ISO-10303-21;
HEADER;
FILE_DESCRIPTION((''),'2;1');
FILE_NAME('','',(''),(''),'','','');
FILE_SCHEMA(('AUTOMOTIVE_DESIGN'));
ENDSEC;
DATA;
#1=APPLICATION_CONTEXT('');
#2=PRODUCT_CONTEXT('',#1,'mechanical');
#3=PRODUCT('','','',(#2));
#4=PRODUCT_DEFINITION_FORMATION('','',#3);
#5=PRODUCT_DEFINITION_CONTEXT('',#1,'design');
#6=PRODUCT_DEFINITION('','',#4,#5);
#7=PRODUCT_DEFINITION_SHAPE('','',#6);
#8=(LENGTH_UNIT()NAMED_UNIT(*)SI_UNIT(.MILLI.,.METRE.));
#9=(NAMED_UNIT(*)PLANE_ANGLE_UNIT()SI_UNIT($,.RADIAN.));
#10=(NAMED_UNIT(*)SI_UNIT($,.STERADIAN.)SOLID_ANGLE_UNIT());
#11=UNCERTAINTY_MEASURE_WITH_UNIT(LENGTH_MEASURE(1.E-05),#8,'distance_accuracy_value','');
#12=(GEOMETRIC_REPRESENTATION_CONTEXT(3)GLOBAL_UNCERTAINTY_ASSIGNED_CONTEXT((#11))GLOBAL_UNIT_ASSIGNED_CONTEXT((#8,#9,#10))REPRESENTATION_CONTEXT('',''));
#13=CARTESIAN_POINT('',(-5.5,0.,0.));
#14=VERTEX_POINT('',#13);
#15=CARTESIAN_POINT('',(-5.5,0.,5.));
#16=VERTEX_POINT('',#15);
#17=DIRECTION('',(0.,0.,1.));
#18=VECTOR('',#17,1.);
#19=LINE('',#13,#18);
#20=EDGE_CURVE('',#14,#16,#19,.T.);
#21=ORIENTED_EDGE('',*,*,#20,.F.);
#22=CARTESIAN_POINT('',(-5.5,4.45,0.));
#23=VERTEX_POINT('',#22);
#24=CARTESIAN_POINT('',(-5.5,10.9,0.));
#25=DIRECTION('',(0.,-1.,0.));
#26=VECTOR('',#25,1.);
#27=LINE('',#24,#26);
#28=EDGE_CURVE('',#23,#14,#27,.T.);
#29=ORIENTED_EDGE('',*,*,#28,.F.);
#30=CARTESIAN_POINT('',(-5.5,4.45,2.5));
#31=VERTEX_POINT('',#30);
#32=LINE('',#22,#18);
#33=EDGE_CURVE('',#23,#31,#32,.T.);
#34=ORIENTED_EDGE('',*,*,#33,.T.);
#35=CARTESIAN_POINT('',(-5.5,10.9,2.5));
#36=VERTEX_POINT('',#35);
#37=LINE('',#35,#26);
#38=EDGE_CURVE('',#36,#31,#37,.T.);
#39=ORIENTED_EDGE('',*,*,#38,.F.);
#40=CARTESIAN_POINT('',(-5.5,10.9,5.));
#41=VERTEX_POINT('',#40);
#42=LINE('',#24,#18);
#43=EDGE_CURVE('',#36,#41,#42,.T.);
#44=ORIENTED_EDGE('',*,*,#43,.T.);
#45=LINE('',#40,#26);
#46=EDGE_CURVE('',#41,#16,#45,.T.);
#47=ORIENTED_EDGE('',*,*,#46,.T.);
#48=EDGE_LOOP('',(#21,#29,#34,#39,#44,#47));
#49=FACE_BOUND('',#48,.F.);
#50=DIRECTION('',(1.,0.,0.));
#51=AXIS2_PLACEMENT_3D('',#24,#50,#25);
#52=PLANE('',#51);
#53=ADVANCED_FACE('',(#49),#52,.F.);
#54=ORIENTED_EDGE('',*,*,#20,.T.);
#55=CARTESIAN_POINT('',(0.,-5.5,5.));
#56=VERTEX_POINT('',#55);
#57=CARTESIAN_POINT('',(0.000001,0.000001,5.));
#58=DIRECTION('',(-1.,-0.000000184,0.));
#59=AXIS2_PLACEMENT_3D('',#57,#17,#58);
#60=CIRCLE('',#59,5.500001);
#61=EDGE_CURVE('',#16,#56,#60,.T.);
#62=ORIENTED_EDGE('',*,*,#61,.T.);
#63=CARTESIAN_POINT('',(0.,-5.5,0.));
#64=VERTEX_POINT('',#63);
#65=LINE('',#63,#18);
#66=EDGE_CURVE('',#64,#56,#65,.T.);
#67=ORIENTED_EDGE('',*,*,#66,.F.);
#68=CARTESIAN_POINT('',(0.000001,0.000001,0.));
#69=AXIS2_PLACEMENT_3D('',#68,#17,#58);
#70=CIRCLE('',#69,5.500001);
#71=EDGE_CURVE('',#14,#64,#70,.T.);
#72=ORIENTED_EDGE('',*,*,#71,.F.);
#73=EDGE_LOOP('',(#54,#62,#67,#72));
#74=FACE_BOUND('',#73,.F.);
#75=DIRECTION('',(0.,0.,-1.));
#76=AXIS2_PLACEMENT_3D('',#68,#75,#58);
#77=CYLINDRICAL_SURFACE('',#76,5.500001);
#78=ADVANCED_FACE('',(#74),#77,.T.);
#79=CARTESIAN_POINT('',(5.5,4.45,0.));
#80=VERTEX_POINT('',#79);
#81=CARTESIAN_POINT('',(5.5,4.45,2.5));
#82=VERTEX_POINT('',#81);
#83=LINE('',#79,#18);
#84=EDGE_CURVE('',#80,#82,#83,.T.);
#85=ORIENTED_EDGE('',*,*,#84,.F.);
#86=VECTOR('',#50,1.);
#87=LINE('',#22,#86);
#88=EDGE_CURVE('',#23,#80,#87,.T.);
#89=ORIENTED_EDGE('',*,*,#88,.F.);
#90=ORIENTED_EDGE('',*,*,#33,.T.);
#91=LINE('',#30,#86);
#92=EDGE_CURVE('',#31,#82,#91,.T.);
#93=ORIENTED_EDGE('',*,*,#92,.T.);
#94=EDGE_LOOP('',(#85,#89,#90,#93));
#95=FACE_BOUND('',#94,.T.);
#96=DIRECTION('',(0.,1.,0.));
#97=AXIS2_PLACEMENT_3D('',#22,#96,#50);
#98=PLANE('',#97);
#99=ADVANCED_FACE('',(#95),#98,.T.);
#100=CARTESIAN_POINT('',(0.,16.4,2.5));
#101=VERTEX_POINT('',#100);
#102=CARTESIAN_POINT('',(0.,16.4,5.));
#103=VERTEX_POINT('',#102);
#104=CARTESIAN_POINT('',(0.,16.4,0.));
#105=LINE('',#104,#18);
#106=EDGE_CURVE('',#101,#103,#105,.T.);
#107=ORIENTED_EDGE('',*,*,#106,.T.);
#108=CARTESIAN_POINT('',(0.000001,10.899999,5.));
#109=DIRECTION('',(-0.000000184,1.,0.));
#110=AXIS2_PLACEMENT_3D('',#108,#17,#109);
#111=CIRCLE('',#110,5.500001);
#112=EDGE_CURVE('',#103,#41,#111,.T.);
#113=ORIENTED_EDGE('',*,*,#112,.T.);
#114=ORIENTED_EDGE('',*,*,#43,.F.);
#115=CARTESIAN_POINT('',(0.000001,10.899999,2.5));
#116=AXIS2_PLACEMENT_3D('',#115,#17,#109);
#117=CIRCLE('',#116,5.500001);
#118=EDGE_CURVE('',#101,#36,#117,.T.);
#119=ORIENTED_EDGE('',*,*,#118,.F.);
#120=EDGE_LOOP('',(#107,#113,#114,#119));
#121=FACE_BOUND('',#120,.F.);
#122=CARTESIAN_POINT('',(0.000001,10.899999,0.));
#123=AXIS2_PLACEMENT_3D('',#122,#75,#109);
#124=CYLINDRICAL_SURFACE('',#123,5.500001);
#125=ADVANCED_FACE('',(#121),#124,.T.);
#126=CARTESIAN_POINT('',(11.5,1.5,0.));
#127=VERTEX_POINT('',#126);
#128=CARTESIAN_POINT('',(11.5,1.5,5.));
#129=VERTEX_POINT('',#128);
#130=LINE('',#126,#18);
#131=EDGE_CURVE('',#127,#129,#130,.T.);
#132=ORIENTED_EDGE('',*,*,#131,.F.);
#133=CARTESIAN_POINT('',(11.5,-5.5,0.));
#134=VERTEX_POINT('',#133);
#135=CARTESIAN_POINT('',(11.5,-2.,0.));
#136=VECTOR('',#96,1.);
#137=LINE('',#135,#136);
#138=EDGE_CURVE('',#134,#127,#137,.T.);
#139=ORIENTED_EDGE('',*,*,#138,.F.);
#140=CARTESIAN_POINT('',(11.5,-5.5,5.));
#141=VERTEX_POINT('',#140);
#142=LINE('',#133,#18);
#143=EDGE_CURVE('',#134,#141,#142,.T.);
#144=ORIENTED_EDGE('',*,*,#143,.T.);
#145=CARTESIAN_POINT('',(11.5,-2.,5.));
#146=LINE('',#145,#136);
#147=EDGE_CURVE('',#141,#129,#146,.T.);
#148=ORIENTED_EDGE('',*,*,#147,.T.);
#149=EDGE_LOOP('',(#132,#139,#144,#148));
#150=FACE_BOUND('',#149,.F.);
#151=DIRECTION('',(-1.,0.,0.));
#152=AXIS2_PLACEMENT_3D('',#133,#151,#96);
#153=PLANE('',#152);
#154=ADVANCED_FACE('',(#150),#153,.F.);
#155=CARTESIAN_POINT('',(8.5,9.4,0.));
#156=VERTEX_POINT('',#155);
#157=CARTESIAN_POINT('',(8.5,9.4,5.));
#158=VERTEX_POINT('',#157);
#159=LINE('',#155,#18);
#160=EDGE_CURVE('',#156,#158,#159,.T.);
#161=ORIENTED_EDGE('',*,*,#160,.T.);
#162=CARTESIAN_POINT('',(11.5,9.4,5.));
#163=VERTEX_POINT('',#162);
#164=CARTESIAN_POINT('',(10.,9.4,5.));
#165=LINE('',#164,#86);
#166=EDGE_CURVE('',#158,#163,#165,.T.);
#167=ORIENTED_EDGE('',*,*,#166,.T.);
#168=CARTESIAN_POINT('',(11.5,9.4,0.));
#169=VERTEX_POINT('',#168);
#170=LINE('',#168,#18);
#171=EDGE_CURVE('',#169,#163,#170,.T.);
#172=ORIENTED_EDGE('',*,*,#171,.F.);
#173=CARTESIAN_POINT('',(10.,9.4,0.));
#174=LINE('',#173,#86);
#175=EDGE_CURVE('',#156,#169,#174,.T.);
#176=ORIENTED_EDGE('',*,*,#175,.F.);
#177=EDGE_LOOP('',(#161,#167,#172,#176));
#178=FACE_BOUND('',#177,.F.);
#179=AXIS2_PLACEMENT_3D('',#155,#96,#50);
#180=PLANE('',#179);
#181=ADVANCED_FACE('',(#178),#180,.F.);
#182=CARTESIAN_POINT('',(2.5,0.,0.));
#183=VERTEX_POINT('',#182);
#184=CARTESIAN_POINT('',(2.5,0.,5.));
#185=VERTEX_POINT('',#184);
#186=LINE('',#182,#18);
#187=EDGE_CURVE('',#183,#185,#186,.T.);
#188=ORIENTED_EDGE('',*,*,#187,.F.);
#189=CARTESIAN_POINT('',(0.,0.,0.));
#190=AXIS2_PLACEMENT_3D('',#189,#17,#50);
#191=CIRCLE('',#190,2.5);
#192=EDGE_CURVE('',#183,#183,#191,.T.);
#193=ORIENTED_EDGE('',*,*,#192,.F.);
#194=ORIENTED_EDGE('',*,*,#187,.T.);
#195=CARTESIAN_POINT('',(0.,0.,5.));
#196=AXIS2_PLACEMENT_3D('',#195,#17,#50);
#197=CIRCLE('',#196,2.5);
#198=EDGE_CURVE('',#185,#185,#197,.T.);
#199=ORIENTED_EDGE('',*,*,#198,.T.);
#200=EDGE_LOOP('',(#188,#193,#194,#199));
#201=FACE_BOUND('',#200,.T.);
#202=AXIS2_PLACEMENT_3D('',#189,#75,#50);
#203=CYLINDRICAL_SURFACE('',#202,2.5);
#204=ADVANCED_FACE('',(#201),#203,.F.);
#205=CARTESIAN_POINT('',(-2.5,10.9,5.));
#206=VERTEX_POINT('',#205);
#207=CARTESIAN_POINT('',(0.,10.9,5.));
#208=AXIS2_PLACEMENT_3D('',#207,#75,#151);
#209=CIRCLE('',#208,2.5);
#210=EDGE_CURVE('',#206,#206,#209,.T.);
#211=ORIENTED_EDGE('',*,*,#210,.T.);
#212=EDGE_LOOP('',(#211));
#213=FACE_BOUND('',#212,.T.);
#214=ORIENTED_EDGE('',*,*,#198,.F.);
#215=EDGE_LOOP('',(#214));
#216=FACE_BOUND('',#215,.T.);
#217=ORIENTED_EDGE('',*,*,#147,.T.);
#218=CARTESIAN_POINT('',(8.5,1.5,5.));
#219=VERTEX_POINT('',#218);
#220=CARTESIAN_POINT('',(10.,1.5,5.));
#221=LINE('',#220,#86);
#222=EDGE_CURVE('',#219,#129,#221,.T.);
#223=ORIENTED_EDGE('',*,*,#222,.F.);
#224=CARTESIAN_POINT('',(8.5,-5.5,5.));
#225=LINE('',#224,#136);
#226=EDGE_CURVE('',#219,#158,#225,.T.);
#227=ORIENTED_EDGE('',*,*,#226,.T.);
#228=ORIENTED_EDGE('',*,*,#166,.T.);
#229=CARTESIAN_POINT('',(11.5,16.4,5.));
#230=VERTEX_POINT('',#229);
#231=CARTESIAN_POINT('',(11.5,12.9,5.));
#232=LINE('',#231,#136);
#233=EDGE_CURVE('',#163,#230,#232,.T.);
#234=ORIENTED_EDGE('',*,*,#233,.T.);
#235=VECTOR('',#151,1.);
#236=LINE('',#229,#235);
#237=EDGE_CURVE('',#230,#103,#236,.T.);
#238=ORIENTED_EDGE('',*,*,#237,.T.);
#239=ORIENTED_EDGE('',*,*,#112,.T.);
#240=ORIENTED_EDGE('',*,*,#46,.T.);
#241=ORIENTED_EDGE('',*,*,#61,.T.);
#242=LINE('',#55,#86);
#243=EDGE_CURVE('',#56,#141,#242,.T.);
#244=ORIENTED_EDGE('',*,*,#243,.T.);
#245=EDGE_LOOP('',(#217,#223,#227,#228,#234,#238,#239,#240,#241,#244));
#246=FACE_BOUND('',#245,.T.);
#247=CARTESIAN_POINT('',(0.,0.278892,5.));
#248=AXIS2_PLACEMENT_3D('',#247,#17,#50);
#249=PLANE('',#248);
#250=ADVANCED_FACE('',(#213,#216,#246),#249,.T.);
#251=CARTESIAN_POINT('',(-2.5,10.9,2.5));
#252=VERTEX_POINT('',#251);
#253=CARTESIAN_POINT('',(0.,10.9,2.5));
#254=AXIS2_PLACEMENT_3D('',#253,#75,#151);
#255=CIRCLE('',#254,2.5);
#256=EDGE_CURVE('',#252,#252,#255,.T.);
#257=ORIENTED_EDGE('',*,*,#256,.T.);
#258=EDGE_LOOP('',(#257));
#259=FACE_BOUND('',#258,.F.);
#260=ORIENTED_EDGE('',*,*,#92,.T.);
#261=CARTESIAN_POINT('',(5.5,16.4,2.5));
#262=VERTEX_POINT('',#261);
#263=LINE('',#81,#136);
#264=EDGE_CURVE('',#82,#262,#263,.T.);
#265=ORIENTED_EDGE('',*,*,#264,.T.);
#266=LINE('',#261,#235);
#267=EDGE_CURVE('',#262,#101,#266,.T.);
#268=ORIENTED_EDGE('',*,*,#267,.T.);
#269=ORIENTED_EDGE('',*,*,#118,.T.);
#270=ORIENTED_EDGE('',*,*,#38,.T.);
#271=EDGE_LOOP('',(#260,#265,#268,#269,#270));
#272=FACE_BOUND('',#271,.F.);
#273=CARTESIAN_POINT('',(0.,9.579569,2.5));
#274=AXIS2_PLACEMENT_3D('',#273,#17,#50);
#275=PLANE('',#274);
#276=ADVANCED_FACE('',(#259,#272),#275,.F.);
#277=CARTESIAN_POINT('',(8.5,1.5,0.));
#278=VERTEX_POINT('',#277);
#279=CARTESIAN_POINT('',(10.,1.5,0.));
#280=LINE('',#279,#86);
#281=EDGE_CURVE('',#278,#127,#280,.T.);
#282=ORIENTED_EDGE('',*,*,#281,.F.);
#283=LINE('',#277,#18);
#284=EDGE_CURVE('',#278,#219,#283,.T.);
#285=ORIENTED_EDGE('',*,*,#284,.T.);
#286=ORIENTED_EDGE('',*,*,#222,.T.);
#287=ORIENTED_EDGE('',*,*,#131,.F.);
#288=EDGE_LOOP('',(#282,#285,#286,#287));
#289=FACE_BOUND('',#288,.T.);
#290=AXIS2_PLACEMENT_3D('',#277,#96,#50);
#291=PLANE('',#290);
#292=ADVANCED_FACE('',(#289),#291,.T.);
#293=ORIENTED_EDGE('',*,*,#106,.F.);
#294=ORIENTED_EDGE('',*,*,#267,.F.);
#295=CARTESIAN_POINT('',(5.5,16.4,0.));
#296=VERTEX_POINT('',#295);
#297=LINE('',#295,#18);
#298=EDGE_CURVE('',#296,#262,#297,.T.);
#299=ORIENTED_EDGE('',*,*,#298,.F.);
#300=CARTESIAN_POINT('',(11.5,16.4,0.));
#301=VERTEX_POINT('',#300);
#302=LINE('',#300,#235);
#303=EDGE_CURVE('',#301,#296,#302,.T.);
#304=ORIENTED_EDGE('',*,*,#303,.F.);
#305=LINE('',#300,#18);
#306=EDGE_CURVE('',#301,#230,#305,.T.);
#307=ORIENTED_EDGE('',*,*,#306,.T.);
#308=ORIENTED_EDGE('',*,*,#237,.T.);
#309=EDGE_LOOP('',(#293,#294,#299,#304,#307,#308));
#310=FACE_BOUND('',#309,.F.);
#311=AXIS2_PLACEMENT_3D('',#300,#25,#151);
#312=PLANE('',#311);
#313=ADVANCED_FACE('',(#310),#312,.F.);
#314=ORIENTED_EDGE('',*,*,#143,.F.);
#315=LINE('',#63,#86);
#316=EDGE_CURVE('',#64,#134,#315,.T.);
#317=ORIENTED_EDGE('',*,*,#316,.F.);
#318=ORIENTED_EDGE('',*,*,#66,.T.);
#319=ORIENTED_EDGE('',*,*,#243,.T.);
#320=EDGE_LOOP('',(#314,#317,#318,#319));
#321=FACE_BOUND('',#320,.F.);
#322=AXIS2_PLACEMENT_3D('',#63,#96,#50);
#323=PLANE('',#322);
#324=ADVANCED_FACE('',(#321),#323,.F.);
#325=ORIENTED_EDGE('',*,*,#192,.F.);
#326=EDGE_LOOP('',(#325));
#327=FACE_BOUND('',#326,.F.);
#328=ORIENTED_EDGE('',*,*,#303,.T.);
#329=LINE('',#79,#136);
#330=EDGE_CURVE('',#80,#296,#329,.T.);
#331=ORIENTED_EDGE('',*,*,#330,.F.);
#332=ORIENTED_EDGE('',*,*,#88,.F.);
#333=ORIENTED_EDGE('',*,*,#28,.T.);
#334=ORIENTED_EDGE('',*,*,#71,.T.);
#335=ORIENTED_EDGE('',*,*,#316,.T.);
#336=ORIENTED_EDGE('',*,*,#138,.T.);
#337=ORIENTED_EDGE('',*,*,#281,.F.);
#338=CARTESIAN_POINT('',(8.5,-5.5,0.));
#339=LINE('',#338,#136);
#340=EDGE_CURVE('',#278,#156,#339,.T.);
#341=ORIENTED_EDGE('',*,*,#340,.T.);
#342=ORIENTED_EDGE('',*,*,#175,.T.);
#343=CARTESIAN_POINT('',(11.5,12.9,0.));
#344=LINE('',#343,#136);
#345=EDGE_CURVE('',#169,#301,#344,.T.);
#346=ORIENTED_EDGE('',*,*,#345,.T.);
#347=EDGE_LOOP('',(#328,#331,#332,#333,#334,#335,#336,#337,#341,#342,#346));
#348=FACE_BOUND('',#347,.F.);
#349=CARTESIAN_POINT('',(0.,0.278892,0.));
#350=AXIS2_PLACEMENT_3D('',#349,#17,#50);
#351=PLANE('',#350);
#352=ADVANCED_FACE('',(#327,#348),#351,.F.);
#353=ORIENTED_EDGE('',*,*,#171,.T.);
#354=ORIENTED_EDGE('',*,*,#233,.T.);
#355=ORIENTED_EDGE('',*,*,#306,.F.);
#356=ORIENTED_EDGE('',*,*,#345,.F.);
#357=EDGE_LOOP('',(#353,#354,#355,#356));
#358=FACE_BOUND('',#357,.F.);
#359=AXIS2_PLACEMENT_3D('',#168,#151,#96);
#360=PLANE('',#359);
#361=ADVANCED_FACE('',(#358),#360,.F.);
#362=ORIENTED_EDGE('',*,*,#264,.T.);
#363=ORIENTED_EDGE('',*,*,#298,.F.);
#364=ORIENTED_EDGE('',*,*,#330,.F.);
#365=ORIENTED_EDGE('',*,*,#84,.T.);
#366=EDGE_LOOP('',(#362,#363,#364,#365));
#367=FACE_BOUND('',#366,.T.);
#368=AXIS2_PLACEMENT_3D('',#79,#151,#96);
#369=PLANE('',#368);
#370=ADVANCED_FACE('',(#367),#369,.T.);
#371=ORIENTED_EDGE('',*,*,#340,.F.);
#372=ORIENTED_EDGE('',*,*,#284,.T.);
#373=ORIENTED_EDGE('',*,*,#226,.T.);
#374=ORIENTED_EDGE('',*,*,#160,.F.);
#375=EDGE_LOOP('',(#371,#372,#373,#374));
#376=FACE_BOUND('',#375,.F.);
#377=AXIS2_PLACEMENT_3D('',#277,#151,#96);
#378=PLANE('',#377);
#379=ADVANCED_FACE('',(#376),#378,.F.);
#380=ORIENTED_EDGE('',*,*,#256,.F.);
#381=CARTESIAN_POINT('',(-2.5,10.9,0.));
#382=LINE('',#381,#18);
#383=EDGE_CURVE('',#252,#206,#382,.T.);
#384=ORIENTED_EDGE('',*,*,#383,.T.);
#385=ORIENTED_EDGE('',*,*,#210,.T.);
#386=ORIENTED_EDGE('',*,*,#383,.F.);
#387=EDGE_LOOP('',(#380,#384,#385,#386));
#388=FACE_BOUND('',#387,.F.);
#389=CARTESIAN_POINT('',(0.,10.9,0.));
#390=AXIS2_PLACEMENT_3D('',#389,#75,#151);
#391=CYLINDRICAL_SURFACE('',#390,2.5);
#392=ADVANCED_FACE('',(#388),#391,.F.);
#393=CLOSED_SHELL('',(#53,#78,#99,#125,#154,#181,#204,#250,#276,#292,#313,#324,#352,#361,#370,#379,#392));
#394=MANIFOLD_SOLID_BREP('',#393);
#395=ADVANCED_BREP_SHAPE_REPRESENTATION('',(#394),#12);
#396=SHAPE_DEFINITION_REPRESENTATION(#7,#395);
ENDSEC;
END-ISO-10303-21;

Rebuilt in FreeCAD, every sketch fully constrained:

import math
import FreeCAD as App
import Part
import Sketcher
from FreeCAD import Vector

doc = App.newDocument("Part")
body = doc.addObject("PartDesign::Body", "Body")

sketch1 = body.newObject("Sketcher::SketchObject", "Sketch")
sketch1.AttachmentSupport = (doc.getObject("XY_Plane"), [""])
sketch1.MapMode = "FlatFace"
sketch1.addGeometry(Part.LineSegment(Vector(-5.5, 10.9, 0), Vector(-5.5, 0, 0)), False)
sketch1.addGeometry(Part.ArcOfCircle(Part.Circle(Vector(0, 0, 0), Vector(0, 0, 1), 5.5), math.radians(-180), math.radians(-90)), False)
sketch1.addGeometry(Part.LineSegment(Vector(0, -5.5, 0), Vector(11.5, -5.5, 0)), False)
sketch1.addGeometry(Part.LineSegment(Vector(11.5, -5.5, 0), Vector(11.5, 1.5, 0)), False)
sketch1.addGeometry(Part.LineSegment(Vector(11.5, 1.5, 0), Vector(8.5, 1.5, 0)), False)
sketch1.addGeometry(Part.LineSegment(Vector(8.5, 1.5, 0), Vector(8.5, 9.4, 0)), False)
sketch1.addGeometry(Part.LineSegment(Vector(8.5, 9.4, 0), Vector(11.5, 9.4, 0)), False)
sketch1.addGeometry(Part.LineSegment(Vector(11.5, 9.4, 0), Vector(11.5, 16.4, 0)), False)
sketch1.addGeometry(Part.LineSegment(Vector(11.5, 16.4, 0), Vector(0, 16.4, 0)), False)
sketch1.addGeometry(Part.ArcOfCircle(Part.Circle(Vector(0, 10.9, 0), Vector(0, 0, 1), 5.5), math.radians(90), math.radians(180)), False)
sketch1.addGeometry(Part.Circle(Vector(0, 0, 0), Vector(0, 0, 1), 2.5), False)
sketch1.addGeometry(Part.Circle(Vector(0, 10.9, 0), Vector(0, 0, 1), 2.5), False)
sketch1.addConstraint(Sketcher.Constraint("Tangent", 0, 2, 1, 1))
sketch1.addConstraint(Sketcher.Constraint("Tangent", 1, 2, 2, 1))
sketch1.addConstraint(Sketcher.Constraint("Coincident", 2, 2, 3, 1))
sketch1.addConstraint(Sketcher.Constraint("Coincident", 3, 2, 4, 1))
sketch1.addConstraint(Sketcher.Constraint("Coincident", 4, 2, 5, 1))
sketch1.addConstraint(Sketcher.Constraint("Coincident", 5, 2, 6, 1))
sketch1.addConstraint(Sketcher.Constraint("Coincident", 6, 2, 7, 1))
sketch1.addConstraint(Sketcher.Constraint("Coincident", 7, 2, 8, 1))
sketch1.addConstraint(Sketcher.Constraint("Tangent", 8, 2, 9, 1))
sketch1.addConstraint(Sketcher.Constraint("Tangent", 9, 2, 0, 1))
sketch1.addConstraint(Sketcher.Constraint("Vertical", 0))
sketch1.addConstraint(Sketcher.Constraint("Horizontal", 2))
sketch1.addConstraint(Sketcher.Constraint("Vertical", 3))
sketch1.addConstraint(Sketcher.Constraint("Horizontal", 4))
sketch1.addConstraint(Sketcher.Constraint("Vertical", 5))
sketch1.addConstraint(Sketcher.Constraint("Horizontal", 6))
sketch1.addConstraint(Sketcher.Constraint("Vertical", 7))
sketch1.addConstraint(Sketcher.Constraint("Horizontal", 8))
sketch1.addConstraint(Sketcher.Constraint("Coincident", 1, 3, -1, 1))
sketch1.addConstraint(Sketcher.Constraint("Coincident", 10, 3, -1, 1))
sketch1.addConstraint(Sketcher.Constraint("Coincident", 11, 3, 9, 3))
sketch1.addConstraint(Sketcher.Constraint("Equal", 1, 9))
sketch1.addConstraint(Sketcher.Constraint("Equal", 10, 11))
sketch1.addConstraint(Sketcher.Constraint("Vertical", 3, 2, 6, 2))
sketch1.addConstraint(Sketcher.Constraint("Equal", 3, 7))
sketch1.addConstraint(Sketcher.Constraint("Diameter", 10, 5.0))
sketch1.addConstraint(Sketcher.Constraint("Radius", 1, 5.500001))
sketch1.addConstraint(Sketcher.Constraint("DistanceX", 4, 2, 4, 1, 3.0))
sketch1.addConstraint(Sketcher.Constraint("DistanceY", 3, 1, 3, 2, 7.0))
sketch1.addConstraint(Sketcher.Constraint("DistanceX", 2, 1, 2, 2, 11.5))
sketch1.addConstraint(Sketcher.Constraint("DistanceY", 0, 2, 0, 1, 10.9))
pad1 = body.newObject("PartDesign::Pad", "Pad")
pad1.Profile = sketch1
pad1.Length = 5

sketch2 = body.newObject("Sketcher::SketchObject", "Sketch001")
sketch2.AttachmentSupport = (doc.getObject("XY_Plane"), [""])
sketch2.MapMode = "FlatFace"
sketch2.addGeometry(Part.LineSegment(Vector(-5.5, 10.9, 0), Vector(-5.5, 4.5, 0)), False)
sketch2.addGeometry(Part.LineSegment(Vector(-5.5, 4.5, 0), Vector(5.5, 4.5, 0)), False)
sketch2.addGeometry(Part.LineSegment(Vector(5.5, 4.5, 0), Vector(5.5, 16.4, 0)), False)
sketch2.addGeometry(Part.LineSegment(Vector(5.5, 16.4, 0), Vector(0, 16.4, 0)), False)
sketch2.addGeometry(Part.ArcOfCircle(Part.Circle(Vector(0, 10.9, 0), Vector(0, 0, 1), 5.5), math.radians(90), math.radians(180)), False)
sketch2.addGeometry(Part.Circle(Vector(0, 10.9, 0), Vector(0, 0, 1), 2.5), False)
sketch2.addConstraint(Sketcher.Constraint("Coincident", 0, 2, 1, 1))
sketch2.addConstraint(Sketcher.Constraint("Coincident", 1, 2, 2, 1))
sketch2.addConstraint(Sketcher.Constraint("Coincident", 2, 2, 3, 1))
sketch2.addConstraint(Sketcher.Constraint("Tangent", 3, 2, 4, 1))
sketch2.addConstraint(Sketcher.Constraint("Tangent", 4, 2, 0, 1))
sketch2.addConstraint(Sketcher.Constraint("Vertical", 0))
sketch2.addConstraint(Sketcher.Constraint("Horizontal", 1))
sketch2.addConstraint(Sketcher.Constraint("Vertical", 2))
sketch2.addConstraint(Sketcher.Constraint("Horizontal", 3))
sketch2.addConstraint(Sketcher.Constraint("Coincident", 5, 3, 4, 3))
sketch2.addConstraint(Sketcher.Constraint("PointOnObject", 4, 3, -2))
sketch2.addConstraint(Sketcher.Constraint("Diameter", 5, 5.0))
sketch2.addConstraint(Sketcher.Constraint("Radius", 4, 5.500001))
sketch2.addConstraint(Sketcher.Constraint("DistanceX", 1, 1, 1, 2, 11.0))
sketch2.addConstraint(Sketcher.Constraint("DistanceY", 0, 2, 0, 1, 6.45))
sketch2.addConstraint(Sketcher.Constraint("DistanceY", -1, 1, 4, 3, 10.899999))
pocket1 = body.newObject("PartDesign::Pocket", "Pocket")
pocket1.Profile = sketch2
pocket1.Length = 2.5
pocket1.Reversed = True

doc.recompute()
